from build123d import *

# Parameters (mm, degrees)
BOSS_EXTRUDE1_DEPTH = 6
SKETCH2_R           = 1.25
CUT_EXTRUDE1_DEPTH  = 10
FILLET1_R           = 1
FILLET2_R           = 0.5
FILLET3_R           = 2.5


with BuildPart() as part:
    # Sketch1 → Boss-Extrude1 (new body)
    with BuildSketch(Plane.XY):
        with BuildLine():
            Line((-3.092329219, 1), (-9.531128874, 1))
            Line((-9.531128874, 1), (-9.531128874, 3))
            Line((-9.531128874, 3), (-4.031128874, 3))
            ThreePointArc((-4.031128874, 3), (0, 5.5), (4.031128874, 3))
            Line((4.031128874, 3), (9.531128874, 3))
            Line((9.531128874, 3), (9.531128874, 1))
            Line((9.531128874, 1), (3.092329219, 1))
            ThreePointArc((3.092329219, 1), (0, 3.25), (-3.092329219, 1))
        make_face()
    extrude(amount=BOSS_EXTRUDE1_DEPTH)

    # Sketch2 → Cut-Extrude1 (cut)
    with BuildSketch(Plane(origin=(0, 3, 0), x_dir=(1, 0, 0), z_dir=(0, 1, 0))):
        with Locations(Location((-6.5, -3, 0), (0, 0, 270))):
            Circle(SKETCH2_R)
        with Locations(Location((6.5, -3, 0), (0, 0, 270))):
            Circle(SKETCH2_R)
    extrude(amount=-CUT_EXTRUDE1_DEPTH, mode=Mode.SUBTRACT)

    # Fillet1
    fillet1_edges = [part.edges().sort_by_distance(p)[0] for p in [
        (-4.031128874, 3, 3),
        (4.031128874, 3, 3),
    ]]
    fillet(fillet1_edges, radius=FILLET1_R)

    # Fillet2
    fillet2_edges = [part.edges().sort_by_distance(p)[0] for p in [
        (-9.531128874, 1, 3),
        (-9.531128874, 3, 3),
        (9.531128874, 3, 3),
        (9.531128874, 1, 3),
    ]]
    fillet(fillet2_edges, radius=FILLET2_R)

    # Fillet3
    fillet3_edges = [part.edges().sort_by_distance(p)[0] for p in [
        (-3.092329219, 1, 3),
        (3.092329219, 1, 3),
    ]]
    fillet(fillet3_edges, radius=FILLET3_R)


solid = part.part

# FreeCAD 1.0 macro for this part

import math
import FreeCAD as App
import Part
import Sketcher
Q = App.Units.Quantity


def edges_at(feature, points):
    """Names of the edges that pass closest to the given points."""
    edges = feature.Shape.Edges
    near = lambda p: min(range(len(edges)), key=lambda i: edges[i].distToShape(Part.Vertex(*p))[0])
    return sorted({f"Edge{near(p) + 1}" for p in points})

doc = App.newDocument("Part")
body = doc.addObject("PartDesign::Body", "Body")

sketch1 = body.newObject("Sketcher::SketchObject", "Sketch")
sketch1.AttachmentSupport = (doc.getObject("XY_Plane"), [""])
sketch1.MapMode = "FlatFace"
sketch1.addGeometry(Part.LineSegment(App.Vector(-9.531129, 1, 0), App.Vector(-3.092329, 1, 0)), False)
sketch1.addGeometry(Part.ArcOfCircle(Part.Circle(App.Vector(0, 0, 0), App.Vector(0, 0, 1), 3.25), math.radians(17.920213), math.radians(162.079787)), False)
sketch1.addGeometry(Part.LineSegment(App.Vector(3.092329, 1, 0), App.Vector(9.531129, 1, 0)), False)
sketch1.addGeometry(Part.LineSegment(App.Vector(9.531129, 1, 0), App.Vector(9.531129, 3, 0)), False)
sketch1.addGeometry(Part.LineSegment(App.Vector(9.531129, 3, 0), App.Vector(4.031129, 3, 0)), False)
sketch1.addGeometry(Part.ArcOfCircle(Part.Circle(App.Vector(0, 1, 0), App.Vector(0, 0, 1), 4.5), math.radians(26.3878), math.radians(153.6122)), False)
sketch1.addGeometry(Part.LineSegment(App.Vector(-4.031129, 3, 0), App.Vector(-9.531129, 3, 0)), False)
sketch1.addGeometry(Part.LineSegment(App.Vector(-9.531129, 3, 0), App.Vector(-9.531129, 1, 0)), False)
sketch1.addConstraint(Sketcher.Constraint("Coincident", 0, 2, 1, 2))
sketch1.addConstraint(Sketcher.Constraint("Coincident", 1, 1, 2, 1))
sketch1.addConstraint(Sketcher.Constraint("Coincident", 2, 2, 3, 1))
sketch1.addConstraint(Sketcher.Constraint("Coincident", 3, 2, 4, 1))
sketch1.addConstraint(Sketcher.Constraint("Coincident", 4, 2, 5, 1))
sketch1.addConstraint(Sketcher.Constraint("Coincident", 5, 2, 6, 1))
sketch1.addConstraint(Sketcher.Constraint("Coincident", 6, 2, 7, 1))
sketch1.addConstraint(Sketcher.Constraint("Coincident", 7, 2, 0, 1))
sketch1.addConstraint(Sketcher.Constraint("Horizontal", 0))
sketch1.addConstraint(Sketcher.Constraint("Horizontal", 2))
sketch1.addConstraint(Sketcher.Constraint("Vertical", 3))
sketch1.addConstraint(Sketcher.Constraint("Horizontal", 4))
sketch1.addConstraint(Sketcher.Constraint("Horizontal", 6))
sketch1.addConstraint(Sketcher.Constraint("Vertical", 7))
sketch1.addConstraint(Sketcher.Constraint("Coincident", 1, 3, -1, 1))
sketch1.addConstraint(Sketcher.Constraint("Symmetric", 4, 2, 5, 2, -2))
sketch1.addConstraint(Sketcher.Constraint("Symmetric", 2, 2, 7, 2, -2))
sketch1.addConstraint(Sketcher.Constraint("Horizontal", 5, 3, 0, 2))
sketch1.addConstraint(Sketcher.Constraint("Radius", 5, Q("4.5 mm")))
sketch1.addConstraint(Sketcher.Constraint("DistanceY", 3, 1, 3, 2, Q("2 mm")))
sketch1.addConstraint(Sketcher.Constraint("Radius", 1, Q("3.25 mm")))
sketch1.addConstraint(Sketcher.Constraint("DistanceX", 4, 2, 4, 1, Q("5.5 mm")))
sketch1.addConstraint(Sketcher.Constraint("DistanceY", -1, 1, 5, 3, Q("1 mm")))
pad1 = body.newObject("PartDesign::Pad", "Pad")
pad1.Profile = sketch1
pad1.Length = 6

sketch2 = body.newObject("Sketcher::SketchObject", "Sketch001")
sketch2.AttachmentSupport = (doc.getObject("XZ_Plane"), [""])
sketch2.MapMode = "FlatFace"
sketch2.AttachmentOffset = App.Placement(App.Vector(0, 0, -3), App.Rotation())
sketch2.addGeometry(Part.Circle(App.Vector(-6.5, 3, 0), App.Vector(0, 0, 1), 1.25), False)
sketch2.addGeometry(Part.Circle(App.Vector(6.5, 3, 0), App.Vector(0, 0, 1), 1.25), False)
sketch2.addConstraint(Sketcher.Constraint("Equal", 0, 1))
sketch2.addConstraint(Sketcher.Constraint("Symmetric", 0, 3, 1, 3, -2))
sketch2.addConstraint(Sketcher.Constraint("Diameter", 0, Q("2.5 mm")))
sketch2.addConstraint(Sketcher.Constraint("DistanceY", -1, 1, 0, 3, Q("3 mm")))
sketch2.addConstraint(Sketcher.Constraint("DistanceX", 0, 3, 1, 3, Q("13 mm")))
pocket1 = body.newObject("PartDesign::Pocket", "Pocket")
pocket1.Profile = sketch2
pocket1.Length = 10
pocket1.Reversed = True
doc.recompute()

fillet = body.newObject("PartDesign::Fillet", "Fillet")
fillet.Base = (pocket1, edges_at(pocket1, [(-4.031, 3, 3), (4.031, 3, 3)]))
fillet.Radius = 1
doc.recompute()

fillet2 = body.newObject("PartDesign::Fillet", "Fillet001")
fillet2.Base = (fillet, edges_at(fillet, [
    (-9.531, 1, 3),
    (-9.531, 3, 3),
    (9.531, 3, 3),
    (9.531, 1, 3),
]))
fillet2.Radius = 0.5
doc.recompute()

fillet3 = body.newObject("PartDesign::Fillet", "Fillet002")
fillet3.Base = (fillet2, edges_at(fillet2, [(-3.092, 1, 3), (3.092, 1, 3)]))
fillet3.Radius = 2.5

doc.recompute()
